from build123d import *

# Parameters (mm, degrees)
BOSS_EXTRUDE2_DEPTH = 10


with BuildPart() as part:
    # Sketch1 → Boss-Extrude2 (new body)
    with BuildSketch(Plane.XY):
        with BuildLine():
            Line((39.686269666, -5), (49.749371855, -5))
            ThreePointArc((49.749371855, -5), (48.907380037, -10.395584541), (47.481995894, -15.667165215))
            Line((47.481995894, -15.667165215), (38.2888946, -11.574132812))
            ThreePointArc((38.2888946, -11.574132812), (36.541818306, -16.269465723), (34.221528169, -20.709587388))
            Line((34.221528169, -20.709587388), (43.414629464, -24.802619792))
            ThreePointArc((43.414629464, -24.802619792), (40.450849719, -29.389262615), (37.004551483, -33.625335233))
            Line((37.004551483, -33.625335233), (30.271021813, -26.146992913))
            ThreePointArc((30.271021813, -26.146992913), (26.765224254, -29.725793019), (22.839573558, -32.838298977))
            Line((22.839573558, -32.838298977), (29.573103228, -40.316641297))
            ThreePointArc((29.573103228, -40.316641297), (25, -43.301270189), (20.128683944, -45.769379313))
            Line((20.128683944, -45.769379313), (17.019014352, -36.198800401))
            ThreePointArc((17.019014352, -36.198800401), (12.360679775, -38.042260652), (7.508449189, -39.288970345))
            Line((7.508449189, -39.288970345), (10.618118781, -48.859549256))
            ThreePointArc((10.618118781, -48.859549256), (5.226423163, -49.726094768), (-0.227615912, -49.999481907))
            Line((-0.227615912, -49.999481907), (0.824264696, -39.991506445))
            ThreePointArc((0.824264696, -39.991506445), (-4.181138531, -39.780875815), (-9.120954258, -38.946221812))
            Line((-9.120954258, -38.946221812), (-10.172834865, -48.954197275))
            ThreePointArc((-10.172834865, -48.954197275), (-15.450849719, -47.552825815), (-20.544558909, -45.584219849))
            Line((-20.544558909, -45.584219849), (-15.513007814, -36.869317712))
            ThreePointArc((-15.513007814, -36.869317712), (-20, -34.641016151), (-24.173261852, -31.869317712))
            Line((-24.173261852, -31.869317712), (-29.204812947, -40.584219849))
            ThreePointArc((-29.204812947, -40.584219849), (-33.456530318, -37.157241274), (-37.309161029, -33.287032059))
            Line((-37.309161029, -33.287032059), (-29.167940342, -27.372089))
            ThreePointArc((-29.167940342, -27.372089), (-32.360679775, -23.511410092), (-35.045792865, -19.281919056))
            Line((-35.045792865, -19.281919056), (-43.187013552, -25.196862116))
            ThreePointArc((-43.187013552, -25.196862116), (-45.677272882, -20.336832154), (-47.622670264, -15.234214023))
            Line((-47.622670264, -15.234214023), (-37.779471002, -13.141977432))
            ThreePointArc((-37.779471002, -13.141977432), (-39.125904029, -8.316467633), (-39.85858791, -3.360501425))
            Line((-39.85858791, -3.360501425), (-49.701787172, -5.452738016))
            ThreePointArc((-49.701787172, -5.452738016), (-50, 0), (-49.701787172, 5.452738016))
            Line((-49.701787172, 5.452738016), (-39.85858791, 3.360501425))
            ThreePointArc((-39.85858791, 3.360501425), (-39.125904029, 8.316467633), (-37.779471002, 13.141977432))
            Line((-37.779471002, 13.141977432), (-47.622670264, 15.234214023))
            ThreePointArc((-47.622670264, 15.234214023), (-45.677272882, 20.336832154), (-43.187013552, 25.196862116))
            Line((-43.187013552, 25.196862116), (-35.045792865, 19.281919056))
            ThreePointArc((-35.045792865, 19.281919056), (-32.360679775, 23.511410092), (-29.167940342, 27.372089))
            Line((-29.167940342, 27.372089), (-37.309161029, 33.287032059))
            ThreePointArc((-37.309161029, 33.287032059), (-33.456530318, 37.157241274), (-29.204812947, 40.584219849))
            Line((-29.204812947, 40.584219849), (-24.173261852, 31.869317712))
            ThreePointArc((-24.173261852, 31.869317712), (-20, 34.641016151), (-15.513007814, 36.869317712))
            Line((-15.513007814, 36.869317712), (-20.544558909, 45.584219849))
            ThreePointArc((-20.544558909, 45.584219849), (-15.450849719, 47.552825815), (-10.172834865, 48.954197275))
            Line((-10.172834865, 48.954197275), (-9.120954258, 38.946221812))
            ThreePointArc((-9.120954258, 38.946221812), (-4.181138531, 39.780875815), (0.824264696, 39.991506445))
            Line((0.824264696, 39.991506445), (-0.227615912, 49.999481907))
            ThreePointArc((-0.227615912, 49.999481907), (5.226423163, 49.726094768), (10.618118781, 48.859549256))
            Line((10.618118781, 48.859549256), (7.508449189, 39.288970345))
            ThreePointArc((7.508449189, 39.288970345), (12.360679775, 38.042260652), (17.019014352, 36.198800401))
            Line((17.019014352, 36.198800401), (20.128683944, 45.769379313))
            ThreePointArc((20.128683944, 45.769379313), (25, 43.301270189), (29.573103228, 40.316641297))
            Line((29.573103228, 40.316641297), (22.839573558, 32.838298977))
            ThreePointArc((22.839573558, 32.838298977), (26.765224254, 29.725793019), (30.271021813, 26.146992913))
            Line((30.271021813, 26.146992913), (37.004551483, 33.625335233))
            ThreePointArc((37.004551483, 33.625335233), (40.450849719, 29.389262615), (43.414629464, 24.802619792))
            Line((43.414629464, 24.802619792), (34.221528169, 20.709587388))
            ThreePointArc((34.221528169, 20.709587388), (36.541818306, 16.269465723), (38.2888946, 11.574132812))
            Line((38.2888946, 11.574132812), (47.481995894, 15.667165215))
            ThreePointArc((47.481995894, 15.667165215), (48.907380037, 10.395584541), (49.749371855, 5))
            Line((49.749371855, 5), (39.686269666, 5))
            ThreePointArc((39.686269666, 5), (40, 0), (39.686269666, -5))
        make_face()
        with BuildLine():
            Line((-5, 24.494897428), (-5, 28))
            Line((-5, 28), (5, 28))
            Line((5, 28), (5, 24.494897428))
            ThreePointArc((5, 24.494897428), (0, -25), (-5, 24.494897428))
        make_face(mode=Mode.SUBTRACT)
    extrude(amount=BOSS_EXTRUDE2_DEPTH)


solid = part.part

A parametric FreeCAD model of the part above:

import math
import FreeCAD as App
import Part
import Sketcher

V = App.Vector
Q = App.Units.Quantity

doc = App.newDocument("Part")
body = doc.addObject("PartDesign::Body", "Body")

# Sketch on XY plane
sketch1 = doc.addObject("Sketcher::SketchObject", "Sketch")
body.addObject(sketch1)
sketch1.AttachmentSupport = (doc.XY_Plane, [""])
sketch1.MapMode = "FlatFace"
sketch1.addGeometry(Part.LineSegment(V(49.7, -5, 0), V(39.7, -5, 0)), False)
sketch1.addGeometry(Part.ArcOfCircle(Part.Circle(V(0, 0, 0), V(0, 0, 1), 40), math.radians(-7.18), math.radians(7.18)), False)
sketch1.addGeometry(Part.LineSegment(V(39.7, 5, 0), V(49.7, 5, 0)), False)
sketch1.addGeometry(Part.ArcOfCircle(Part.Circle(V(0, 0, 0), V(0, 0, 1), 50), math.radians(5.74), math.radians(18.26)), False)
sketch1.addGeometry(Part.LineSegment(V(47.5, 15.7, 0), V(38.3, 11.6, 0)), False)
sketch1.addGeometry(Part.ArcOfCircle(Part.Circle(V(0, 0, 0), V(0, 0, 1), 40), math.radians(16.82), math.radians(31.18)), False)
sketch1.addGeometry(Part.LineSegment(V(34.2, 20.7, 0), V(43.4, 24.8, 0)), False)
sketch1.addGeometry(Part.ArcOfCircle(Part.Circle(V(0, 0, 0), V(0, 0, 1), 50), math.radians(29.74), math.radians(42.26)), False)
sketch1.addGeometry(Part.LineSegment(V(37, 33.6, 0), V(30.3, 26.1, 0)), False)
sketch1.addGeometry(Part.ArcOfCircle(Part.Circle(V(0, 0, 0), V(0, 0, 1), 40), math.radians(40.82), math.radians(55.18)), False)
sketch1.addGeometry(Part.LineSegment(V(22.8, 32.8, 0), V(29.6, 40.3, 0)), False)
sketch1.addGeometry(Part.ArcOfCircle(Part.Circle(V(0, 0, 0), V(0, 0, 1), 50), math.radians(53.74), math.radians(66.26)), False)
sketch1.addGeometry(Part.LineSegment(V(20.1, 45.8, 0), V(17, 36.2, 0)), False)
sketch1.addGeometry(Part.ArcOfCircle(Part.Circle(V(0, 0, 0), V(0, 0, 1), 40), math.radians(64.82), math.radians(79.18)), False)
sketch1.addGeometry(Part.LineSegment(V(7.5, 39.3, 0), V(10.6, 48.9, 0)), False)
sketch1.addGeometry(Part.ArcOfCircle(Part.Circle(V(0, 0, 0), V(0, 0, 1), 50), math.radians(77.74), math.radians(90.26)), False)
sketch1.addGeometry(Part.LineSegment(V(-0.2, 50, 0), V(0.8, 40, 0)), False)
sketch1.addGeometry(Part.ArcOfCircle(Part.Circle(V(0, 0, 0), V(0, 0, 1), 40), math.radians(88.82), math.radians(103.18)), False)
sketch1.addGeometry(Part.LineSegment(V(-9.1, 38.9, 0), V(-10.2, 49, 0)), False)
sketch1.addGeometry(Part.ArcOfCircle(Part.Circle(V(0, 0, 0), V(0, 0, 1), 50), math.radians(101.74), math.radians(114.26)), False)
sketch1.addGeometry(Part.LineSegment(V(-20.5, 45.6, 0), V(-15.5, 36.9, 0)), False)
sketch1.addGeometry(Part.ArcOfCircle(Part.Circle(V(0, 0, 0), V(0, 0, 1), 40), math.radians(112.82), math.radians(127.18)), False)
sketch1.addGeometry(Part.LineSegment(V(-24.2, 31.9, 0), V(-29.2, 40.6, 0)), False)
sketch1.addGeometry(Part.ArcOfCircle(Part.Circle(V(0, 0, 0), V(0, 0, 1), 50), math.radians(125.74), math.radians(138.26)), False)
sketch1.addGeometry(Part.LineSegment(V(-37.3, 33.3, 0), V(-29.2, 27.4, 0)), False)
sketch1.addGeometry(Part.ArcOfCircle(Part.Circle(V(0, 0, 0), V(0, 0, 1), 40), math.radians(136.82), math.radians(151.18)), False)
sketch1.addGeometry(Part.LineSegment(V(-35, 19.3, 0), V(-43.2, 25.2, 0)), False)
sketch1.addGeometry(Part.ArcOfCircle(Part.Circle(V(0, 0, 0), V(0, 0, 1), 50), math.radians(149.74), math.radians(162.26)), False)
sketch1.addGeometry(Part.LineSegment(V(-47.6, 15.2, 0), V(-37.8, 13.1, 0)), False)
sketch1.addGeometry(Part.ArcOfCircle(Part.Circle(V(0, 0, 0), V(0, 0, 1), 40), math.radians(160.82), math.radians(175.18)), False)
sketch1.addGeometry(Part.LineSegment(V(-39.9, 3.4, 0), V(-49.7, 5.5, 0)), False)
sketch1.addGeometry(Part.ArcOfCircle(Part.Circle(V(0, 0, 0), V(0, 0, 1), 50), math.radians(173.74), math.radians(186.26)), False)
sketch1.addGeometry(Part.LineSegment(V(-49.7, -5.5, 0), V(-39.9, -3.4, 0)), False)
sketch1.addGeometry(Part.ArcOfCircle(Part.Circle(V(0, 0, 0), V(0, 0, 1), 40), math.radians(-175.18), math.radians(-160.82)), False)
sketch1.addGeometry(Part.LineSegment(V(-37.8, -13.1, 0), V(-47.6, -15.2, 0)), False)
sketch1.addGeometry(Part.ArcOfCircle(Part.Circle(V(0, 0, 0), V(0, 0, 1), 50), math.radians(-162.26), math.radians(-149.74)), False)
sketch1.addGeometry(Part.LineSegment(V(-43.2, -25.2, 0), V(-35, -19.3, 0)), False)
sketch1.addGeometry(Part.ArcOfCircle(Part.Circle(V(0, 0, 0), V(0, 0, 1), 40), math.radians(-151.18), math.radians(-136.82)), False)
sketch1.addGeometry(Part.LineSegment(V(-29.2, -27.4, 0), V(-37.3, -33.3, 0)), False)
sketch1.addGeometry(Part.ArcOfCircle(Part.Circle(V(0, 0, 0), V(0, 0, 1), 50), math.radians(-138.26), math.radians(-125.74)), False)
sketch1.addGeometry(Part.LineSegment(V(-29.2, -40.6, 0), V(-24.2, -31.9, 0)), False)
sketch1.addGeometry(Part.ArcOfCircle(Part.Circle(V(0, 0, 0), V(0, 0, 1), 40), math.radians(-127.18), math.radians(-112.82)), False)
sketch1.addGeometry(Part.LineSegment(V(-15.5, -36.9, 0), V(-20.5, -45.6, 0)), False)
sketch1.addGeometry(Part.ArcOfCircle(Part.Circle(V(0, 0, 0), V(0, 0, 1), 50), math.radians(-114.26), math.radians(-101.74)), False)
sketch1.addGeometry(Part.LineSegment(V(-10.2, -49, 0), V(-9.1, -38.9, 0)), False)
sketch1.addGeometry(Part.ArcOfCircle(Part.Circle(V(0, 0, 0), V(0, 0, 1), 40), math.radians(-103.18), math.radians(-88.82)), False)
sketch1.addGeometry(Part.LineSegment(V(0.8, -40, 0), V(-0.2, -50, 0)), False)
sketch1.addGeometry(Part.ArcOfCircle(Part.Circle(V(0, 0, 0), V(0, 0, 1), 50), math.radians(-90.26), math.radians(-77.74)), False)
sketch1.addGeometry(Part.LineSegment(V(10.6, -48.9, 0), V(7.5, -39.3, 0)), False)
sketch1.addGeometry(Part.ArcOfCircle(Part.Circle(V(0, 0, 0), V(0, 0, 1), 40), math.radians(-79.18), math.radians(-64.82)), False)
sketch1.addGeometry(Part.LineSegment(V(17, -36.2, 0), V(20.1, -45.8, 0)), False)
sketch1.addGeometry(Part.ArcOfCircle(Part.Circle(V(0, 0, 0), V(0, 0, 1), 50), math.radians(-66.26), math.radians(-53.74)), False)
sketch1.addGeometry(Part.LineSegment(V(29.6, -40.3, 0), V(22.8, -32.8, 0)), False)
sketch1.addGeometry(Part.ArcOfCircle(Part.Circle(V(0, 0, 0), V(0, 0, 1), 40), math.radians(-55.18), math.radians(-40.82)), False)
sketch1.addGeometry(Part.LineSegment(V(30.3, -26.1, 0), V(37, -33.6, 0)), False)
sketch1.addGeometry(Part.ArcOfCircle(Part.Circle(V(0, 0, 0), V(0, 0, 1), 50), math.radians(-42.26), math.radians(-29.74)), False)
sketch1.addGeometry(Part.LineSegment(V(43.4, -24.8, 0), V(34.2, -20.7, 0)), False)
sketch1.addGeometry(Part.ArcOfCircle(Part.Circle(V(0, 0, 0), V(0, 0, 1), 40), math.radians(-31.18), math.radians(-16.82)), False)
sketch1.addGeometry(Part.LineSegment(V(38.3, -11.6, 0), V(47.5, -15.7, 0)), False)
sketch1.addGeometry(Part.ArcOfCircle(Part.Circle(V(0, 0, 0), V(0, 0, 1), 50), math.radians(-18.26), math.radians(-5.74)), False)
sketch1.addGeometry(Part.LineSegment(V(-5, 24.5, 0), V(-5, 28, 0)), False)
sketch1.addGeometry(Part.LineSegment(V(-5, 28, 0), V(5, 28, 0)), False)
sketch1.addGeometry(Part.LineSegment(V(5, 28, 0), V(5, 24.5, 0)), False)
sketch1.addGeometry(Part.ArcOfCircle(Part.Circle(V(0, 0, 0), V(0, 0, 1), 25), math.radians(102), math.radians(438)), False)
sketch1.addConstraint(Sketcher.Constraint("Coincident", 0, 2, 1, 1))
sketch1.addConstraint(Sketcher.Constraint("Coincident", 1, 2, 2, 1))
sketch1.addConstraint(Sketcher.Constraint("Coincident", 2, 2, 3, 1))
sketch1.addConstraint(Sketcher.Constraint("Coincident", 3, 2, 4, 1))
sketch1.addConstraint(Sketcher.Constraint("Coincident", 4, 2, 5, 1))
sketch1.addConstraint(Sketcher.Constraint("Coincident", 5, 2, 6, 1))
sketch1.addConstraint(Sketcher.Constraint("Coincident", 6, 2, 7, 1))
sketch1.addConstraint(Sketcher.Constraint("Coincident", 7, 2, 8, 1))
sketch1.addConstraint(Sketcher.Constraint("Coincident", 8, 2, 9, 1))
sketch1.addConstraint(Sketcher.Constraint("Coincident", 9, 2, 10, 1))
sketch1.addConstraint(Sketcher.Constraint("Coincident", 10, 2, 11, 1))
sketch1.addConstraint(Sketcher.Constraint("Coincident", 11, 2, 12, 1))
sketch1.addConstraint(Sketcher.Constraint("Coincident", 12, 2, 13, 1))
sketch1.addConstraint(Sketcher.Constraint("Coincident", 13, 2, 14, 1))
sketch1.addConstraint(Sketcher.Constraint("Coincident", 14, 2, 15, 1))
sketch1.addConstraint(Sketcher.Constraint("Coincident", 15, 2, 16, 1))
sketch1.addConstraint(Sketcher.Constraint("Coincident", 16, 2, 17, 1))
sketch1.addConstraint(Sketcher.Constraint("Coincident", 17, 2, 18, 1))
sketch1.addConstraint(Sketcher.Constraint("Coincident", 18, 2, 19, 1))
sketch1.addConstraint(Sketcher.Constraint("Coincident", 19, 2, 20, 1))
sketch1.addConstraint(Sketcher.Constraint("Coincident", 20, 2, 21, 1))
sketch1.addConstraint(Sketcher.Constraint("Coincident", 21, 2, 22, 1))
sketch1.addConstraint(Sketcher.Constraint("Coincident", 22, 2, 23, 1))
sketch1.addConstraint(Sketcher.Constraint("Coincident", 23, 2, 24, 1))
sketch1.addConstraint(Sketcher.Constraint("Coincident", 24, 2, 25, 1))
sketch1.addConstraint(Sketcher.Constraint("Coincident", 25, 2, 26, 1))
sketch1.addConstraint(Sketcher.Constraint("Coincident", 26, 2, 27, 1))
sketch1.addConstraint(Sketcher.Constraint("Coincident", 27, 2, 28, 1))
sketch1.addConstraint(Sketcher.Constraint("Coincident", 28, 2, 29, 1))
sketch1.addConstraint(Sketcher.Constraint("Coincident", 29, 2, 30, 1))
sketch1.addConstraint(Sketcher.Constraint("Coincident", 30, 2, 31, 1))
sketch1.addConstraint(Sketcher.Constraint("Coincident", 31, 2, 32, 1))
sketch1.addConstraint(Sketcher.Constraint("Coincident", 32, 2, 33, 1))
sketch1.addConstraint(Sketcher.Constraint("Coincident", 33, 2, 34, 1))
sketch1.addConstraint(Sketcher.Constraint("Coincident", 34, 2, 35, 1))
sketch1.addConstraint(Sketcher.Constraint("Coincident", 35, 2, 36, 1))
sketch1.addConstraint(Sketcher.Constraint("Coincident", 36, 2, 37, 1))
sketch1.addConstraint(Sketcher.Constraint("Coincident", 37, 2, 38, 1))
sketch1.addConstraint(Sketcher.Constraint("Coincident", 38, 2, 39, 1))
sketch1.addConstraint(Sketcher.Constraint("Coincident", 39, 2, 40, 1))
sketch1.addConstraint(Sketcher.Constraint("Coincident", 40, 2, 41, 1))
sketch1.addConstraint(Sketcher.Constraint("Coincident", 41, 2, 42, 1))
sketch1.addConstraint(Sketcher.Constraint("Coincident", 42, 2, 43, 1))
sketch1.addConstraint(Sketcher.Constraint("Coincident", 43, 2, 44, 1))
sketch1.addConstraint(Sketcher.Constraint("Coincident", 44, 2, 45, 1))
sketch1.addConstraint(Sketcher.Constraint("Coincident", 45, 2, 46, 1))
sketch1.addConstraint(Sketcher.Constraint("Coincident", 46, 2, 47, 1))
sketch1.addConstraint(Sketcher.Constraint("Coincident", 47, 2, 48, 1))
sketch1.addConstraint(Sketcher.Constraint("Coincident", 48, 2, 49, 1))
sketch1.addConstraint(Sketcher.Constraint("Coincident", 49, 2, 50, 1))
sketch1.addConstraint(Sketcher.Constraint("Coincident", 50, 2, 51, 1))
sketch1.addConstraint(Sketcher.Constraint("Coincident", 51, 2, 52, 1))
sketch1.addConstraint(Sketcher.Constraint("Coincident", 52, 2, 53, 1))
sketch1.addConstraint(Sketcher.Constraint("Coincident", 53, 2, 54, 1))
sketch1.addConstraint(Sketcher.Constraint("Coincident", 54, 2, 55, 1))
sketch1.addConstraint(Sketcher.Constraint("Coincident", 55, 2, 56, 1))
sketch1.addConstraint(Sketcher.Constraint("Coincident", 56, 2, 57, 1))
sketch1.addConstraint(Sketcher.Constraint("Coincident", 57, 2, 58, 1))
sketch1.addConstraint(Sketcher.Constraint("Coincident", 58, 2, 59, 1))
sketch1.addConstraint(Sketcher.Constraint("Coincident", 59, 2, 0, 1))
sketch1.addConstraint(Sketcher.Constraint("Coincident", 60, 2, 61, 1))
sketch1.addConstraint(Sketcher.Constraint("Coincident", 61, 2, 62, 1))
sketch1.addConstraint(Sketcher.Constraint("Coincident", 62, 2, 63, 2))
sketch1.addConstraint(Sketcher.Constraint("Coincident", 63, 1, 60, 1))
sketch1.addConstraint(Sketcher.Constraint("Horizontal", 0))
sketch1.addConstraint(Sketcher.Constraint("Horizontal", 2))
sketch1.addConstraint(Sketcher.Constraint("Vertical", 60))
sketch1.addConstraint(Sketcher.Constraint("Horizontal", 61))
sketch1.addConstraint(Sketcher.Constraint("Vertical", 62))
sketch1.addConstraint(Sketcher.Constraint("Coincident", 1, 3, -1, 1))
sketch1.addConstraint(Sketcher.Constraint("Coincident", 3, 3, -1, 1))
sketch1.addConstraint(Sketcher.Constraint("Coincident", 5, 3, -1, 1))
sketch1.addConstraint(Sketcher.Constraint("Coincident", 7, 3, -1, 1))
sketch1.addConstraint(Sketcher.Constraint("Coincident", 9, 3, -1, 1))
sketch1.addConstraint(Sketcher.Constraint("Coincident", 11, 3, -1, 1))
sketch1.addConstraint(Sketcher.Constraint("Coincident", 13, 3, -1, 1))
sketch1.addConstraint(Sketcher.Constraint("Coincident", 15, 3, -1, 1))
sketch1.addConstraint(Sketcher.Constraint("Coincident", 17, 3, -1, 1))
sketch1.addConstraint(Sketcher.Constraint("Coincident", 19, 3, -1, 1))
sketch1.addConstraint(Sketcher.Constraint("Coincident", 21, 3, -1, 1))
sketch1.addConstraint(Sketcher.Constraint("Coincident", 23, 3, -1, 1))
sketch1.addConstraint(Sketcher.Constraint("Coincident", 25, 3, -1, 1))
sketch1.addConstraint(Sketcher.Constraint("Coincident", 27, 3, -1, 1))
sketch1.addConstraint(Sketcher.Constraint("Coincident", 29, 3, -1, 1))
sketch1.addConstraint(Sketcher.Constraint("Coincident", 31, 3, -1, 1))
sketch1.addConstraint(Sketcher.Constraint("Coincident", 33, 3, -1, 1))
sketch1.addConstraint(Sketcher.Constraint("Coincident", 35, 3, -1, 1))
sketch1.addConstraint(Sketcher.Constraint("Coincident", 37, 3, -1, 1))
sketch1.addConstraint(Sketcher.Constraint("Coincident", 39, 3, -1, 1))
sketch1.addConstraint(Sketcher.Constraint("Coincident", 41, 3, -1, 1))
sketch1.addConstraint(Sketcher.Constraint("Coincident", 43, 3, -1, 1))
sketch1.addConstraint(Sketcher.Constraint("Coincident", 45, 3, -1, 1))
sketch1.addConstraint(Sketcher.Constraint("Coincident", 47, 3, -1, 1))
sketch1.addConstraint(Sketcher.Constraint("Coincident", 49, 3, -1, 1))
sketch1.addConstraint(Sketcher.Constraint("Coincident", 51, 3, -1, 1))
sketch1.addConstraint(Sketcher.Constraint("Coincident", 53, 3, -1, 1))
sketch1.addConstraint(Sketcher.Constraint("Coincident", 55, 3, -1, 1))
sketch1.addConstraint(Sketcher.Constraint("Coincident", 57, 3, -1, 1))
sketch1.addConstraint(Sketcher.Constraint("Coincident", 59, 3, -1, 1))
sketch1.addConstraint(Sketcher.Constraint("Coincident", 63, 3, -1, 1))
sketch1.addConstraint(Sketcher.Constraint("Equal", 1, 5))
sketch1.addConstraint(Sketcher.Constraint("Equal", 3, 7))
sketch1.addConstraint(Sketcher.Constraint("Equal", 5, 9))
sketch1.addConstraint(Sketcher.Constraint("Equal", 7, 11))
sketch1.addConstraint(Sketcher.Constraint("Equal", 9, 13))
sketch1.addConstraint(Sketcher.Constraint("Equal", 11, 15))
sketch1.addConstraint(Sketcher.Constraint("Equal", 13, 17))
sketch1.addConstraint(Sketcher.Constraint("Equal", 15, 19))
sketch1.addConstraint(Sketcher.Constraint("Equal", 17, 21))
sketch1.addConstraint(Sketcher.Constraint("Equal", 19, 23))
sketch1.addConstraint(Sketcher.Constraint("Equal", 21, 25))
sketch1.addConstraint(Sketcher.Constraint("Equal", 23, 27))
sketch1.addConstraint(Sketcher.Constraint("Equal", 25, 29))
sketch1.addConstraint(Sketcher.Constraint("Equal", 27, 31))
sketch1.addConstraint(Sketcher.Constraint("Equal", 29, 33))
sketch1.addConstraint(Sketcher.Constraint("Equal", 31, 35))
sketch1.addConstraint(Sketcher.Constraint("Equal", 33, 37))
sketch1.addConstraint(Sketcher.Constraint("Equal", 35, 39))
sketch1.addConstraint(Sketcher.Constraint("Equal", 37, 41))
sketch1.addConstraint(Sketcher.Constraint("Equal", 39, 43))
sketch1.addConstraint(Sketcher.Constraint("Equal", 41, 45))
sketch1.addConstraint(Sketcher.Constraint("Equal", 43, 47))
sketch1.addConstraint(Sketcher.Constraint("Equal", 45, 49))
sketch1.addConstraint(Sketcher.Constraint("Equal", 47, 51))
sketch1.addConstraint(Sketcher.Constraint("Equal", 49, 53))
sketch1.addConstraint(Sketcher.Constraint("Equal", 51, 55))
sketch1.addConstraint(Sketcher.Constraint("Equal", 53, 57))
sketch1.addConstraint(Sketcher.Constraint("Equal", 55, 59))
sketch1.addConstraint(Sketcher.Constraint("Parallel", 4, 6))
sketch1.addConstraint(Sketcher.Constraint("Parallel", 8, 10))
sketch1.addConstraint(Sketcher.Constraint("Parallel", 12, 14))
sketch1.addConstraint(Sketcher.Constraint("Parallel", 16, 18))
sketch1.addConstraint(Sketcher.Constraint("Parallel", 20, 22))
sketch1.addConstraint(Sketcher.Constraint("Parallel", 24, 26))
sketch1.addConstraint(Sketcher.Constraint("Parallel", 28, 30))
sketch1.addConstraint(Sketcher.Constraint("Parallel", 32, 34))
sketch1.addConstraint(Sketcher.Constraint("Parallel", 36, 38))
sketch1.addConstraint(Sketcher.Constraint("Parallel", 40, 42))
sketch1.addConstraint(Sketcher.Constraint("Parallel", 44, 46))
sketch1.addConstraint(Sketcher.Constraint("Parallel", 48, 50))
sketch1.addConstraint(Sketcher.Constraint("Parallel", 52, 54))
sketch1.addConstraint(Sketcher.Constraint("Parallel", 56, 58))
sketch1.addConstraint(Sketcher.Constraint("Horizontal", 62, 2, 63, 1))
sketch1.addConstraint(Sketcher.Constraint("Vertical", 0, 2, 1, 2))
sketch1.addConstraint(Sketcher.Constraint("Vertical", 30, 2, 31, 2))
sketch1.addConstraint(Sketcher.Constraint("Vertical", 29, 2, 32, 2))
sketch1.addConstraint(Sketcher.Constraint("Vertical", 28, 2, 33, 2))
sketch1.addConstraint(Sketcher.Constraint("Vertical", 26, 2, 35, 2))
sketch1.addConstraint(Sketcher.Constraint("Vertical", 25, 2, 36, 2))
sketch1.addConstraint(Sketcher.Constraint("Vertical", 24, 2, 37, 2))
sketch1.addConstraint(Sketcher.Constraint("Vertical", 22, 2, 39, 2))
sketch1.addConstraint(Sketcher.Constraint("Vertical", 21, 2, 40, 2))
sketch1.addConstraint(Sketcher.Constraint("Vertical", 20, 2, 41, 2))
sketch1.addConstraint(Sketcher.Constraint("Vertical", 18, 2, 43, 2))
sketch1.addConstraint(Sketcher.Constraint("Vertical", 17, 2, 44, 2))
sketch1.addConstraint(Sketcher.Constraint("Vertical", 16, 2, 45, 2))
sketch1.addConstraint(Sketcher.Constraint("Vertical", 14, 2, 47, 2))
sketch1.addConstraint(Sketcher.Constraint("Vertical", 13, 2, 48, 2))
sketch1.addConstraint(Sketcher.Constraint("Vertical", 12, 2, 49, 2))
sketch1.addConstraint(Sketcher.Constraint("Vertical", 10, 2, 51, 2))
sketch1.addConstraint(Sketcher.Constraint("Vertical", 9, 2, 52, 2))
sketch1.addConstraint(Sketcher.Constraint("Vertical", 8, 2, 53, 2))
sketch1.addConstraint(Sketcher.Constraint("Vertical", 6, 2, 55, 2))
sketch1.addConstraint(Sketcher.Constraint("Vertical", 5, 2, 56, 2))
sketch1.addConstraint(Sketcher.Constraint("Vertical", 4, 2, 57, 2))
sketch1.addConstraint(Sketcher.Constraint("Equal", 4, 6))
sketch1.addConstraint(Sketcher.Constraint("Equal", 6, 8))
sketch1.addConstraint(Sketcher.Constraint("Equal", 8, 10))
sketch1.addConstraint(Sketcher.Constraint("Equal", 10, 12))
sketch1.addConstraint(Sketcher.Constraint("Equal", 12, 14))
sketch1.addConstraint(Sketcher.Constraint("Equal", 14, 16))
sketch1.addConstraint(Sketcher.Constraint("Equal", 16, 18))
sketch1.addConstraint(Sketcher.Constraint("Equal", 18, 20))
sketch1.addConstraint(Sketcher.Constraint("Equal", 20, 22))
sketch1.addConstraint(Sketcher.Constraint("Equal", 22, 24))
sketch1.addConstraint(Sketcher.Constraint("Equal", 24, 26))
sketch1.addConstraint(Sketcher.Constraint("Equal", 26, 28))
sketch1.addConstraint(Sketcher.Constraint("Equal", 28, 30))
sketch1.addConstraint(Sketcher.Constraint("Radius", 1, Q("40 mm")))
sketch1.addConstraint(Sketcher.Constraint("Radius", 3, Q("50 mm")))
sketch1.addConstraint(Sketcher.Constraint("Radius", 63, Q("25 mm")))
sketch1.addConstraint(Sketcher.Constraint("DistanceX", 61, 1, 61, 2, Q("10 mm")))
sketch1.addConstraint(Sketcher.Constraint("Angle", 4, Q("-156 deg")))
sketch1.addConstraint(Sketcher.Constraint("Angle", 8, Q("-132 deg")))
sketch1.addConstraint(Sketcher.Constraint("Angle", 12, Q("-108 deg")))
sketch1.addConstraint(Sketcher.Constraint("Angle", 16, Q("-84 deg")))
sketch1.addConstraint(Sketcher.Constraint("Angle", 20, Q("-60 deg")))
sketch1.addConstraint(Sketcher.Constraint("Angle", 24, Q("-36 deg")))
sketch1.addConstraint(Sketcher.Constraint("Angle", 28, Q("-12 deg")))
sketch1.addConstraint(Sketcher.Constraint("DistanceY", 0, 2, -1, 1, Q("5 mm")))
sketch1.addConstraint(Sketcher.Constraint("DistanceY", -1, 1, 60, 2, Q("28 mm")))
sketch1.addConstraint(Sketcher.Constraint("DistanceY", -1, 1, 9, 2, Q("32.838299 mm")))
pad1 = doc.addObject("PartDesign::Pad", "Pad")
body.addObject(pad1)
pad1.Profile = sketch1
pad1.Length = 10

doc.recompute()
